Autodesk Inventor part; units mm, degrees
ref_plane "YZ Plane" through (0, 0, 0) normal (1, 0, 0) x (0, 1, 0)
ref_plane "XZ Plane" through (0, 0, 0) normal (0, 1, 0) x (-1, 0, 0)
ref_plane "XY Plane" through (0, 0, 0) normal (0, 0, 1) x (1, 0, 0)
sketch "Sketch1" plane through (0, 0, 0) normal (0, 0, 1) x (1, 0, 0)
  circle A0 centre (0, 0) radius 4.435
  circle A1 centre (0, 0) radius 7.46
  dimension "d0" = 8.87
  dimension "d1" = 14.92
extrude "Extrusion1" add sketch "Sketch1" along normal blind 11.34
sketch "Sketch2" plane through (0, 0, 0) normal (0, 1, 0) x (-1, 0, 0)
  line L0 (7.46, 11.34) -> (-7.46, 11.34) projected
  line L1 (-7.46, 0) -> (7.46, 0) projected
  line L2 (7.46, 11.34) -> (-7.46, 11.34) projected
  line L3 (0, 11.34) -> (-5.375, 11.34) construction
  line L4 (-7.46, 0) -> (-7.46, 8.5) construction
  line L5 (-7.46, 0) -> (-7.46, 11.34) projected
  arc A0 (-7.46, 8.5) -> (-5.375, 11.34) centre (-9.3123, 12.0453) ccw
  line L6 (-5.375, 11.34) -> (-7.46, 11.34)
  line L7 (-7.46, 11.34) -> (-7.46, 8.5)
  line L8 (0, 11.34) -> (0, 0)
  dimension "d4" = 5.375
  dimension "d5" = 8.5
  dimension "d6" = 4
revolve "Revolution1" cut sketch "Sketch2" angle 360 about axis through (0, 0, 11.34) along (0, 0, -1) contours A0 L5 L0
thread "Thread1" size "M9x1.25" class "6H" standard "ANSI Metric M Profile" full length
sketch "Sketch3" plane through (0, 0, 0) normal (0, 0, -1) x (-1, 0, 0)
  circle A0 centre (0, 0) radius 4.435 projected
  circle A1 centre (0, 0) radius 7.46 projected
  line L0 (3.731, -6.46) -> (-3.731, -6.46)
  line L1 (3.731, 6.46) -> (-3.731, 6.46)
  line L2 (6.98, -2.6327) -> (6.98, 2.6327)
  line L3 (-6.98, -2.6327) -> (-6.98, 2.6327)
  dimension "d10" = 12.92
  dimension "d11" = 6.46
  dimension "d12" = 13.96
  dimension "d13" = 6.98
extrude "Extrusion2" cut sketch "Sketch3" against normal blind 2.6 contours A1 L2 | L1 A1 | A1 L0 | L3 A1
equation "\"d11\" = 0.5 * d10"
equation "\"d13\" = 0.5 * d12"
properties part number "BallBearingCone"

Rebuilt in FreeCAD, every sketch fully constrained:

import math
import FreeCAD as App
import Part
import Sketcher

V = App.Vector

doc = App.newDocument("Part")
body = doc.addObject("PartDesign::Body", "Body")

sketch1 = body.newObject("Sketcher::SketchObject", "Sketch")
sketch1.AttachmentSupport = (doc.getObject("XY_Plane"), [""])
sketch1.MapMode = "FlatFace"
sketch1.addGeometry(Part.Circle(V(0, 0, 0), V(0, 0, 1), 7.5), False)
sketch1.addGeometry(Part.Circle(V(0, 0, 0), V(0, 0, 1), 4.4), False)
sketch1.addConstraint(Sketcher.Constraint("Coincident", 0, 3, -1, 1))
sketch1.addConstraint(Sketcher.Constraint("Coincident", 1, 3, -1, 1))
sketch1.addConstraint(Sketcher.Constraint("Diameter", 0, 14.92))
sketch1.addConstraint(Sketcher.Constraint("Diameter", 1, 8.87))
pad1 = body.newObject("PartDesign::Pad", "Pad")
pad1.Profile = sketch1
pad1.Length = 11.34

sketch2 = body.newObject("Sketcher::SketchObject", "Sketch001")
sketch2.AttachmentSupport = (doc.getObject("XZ_Plane"), [""])
sketch2.MapMode = "FlatFace"
sketch2.addGeometry(Part.ArcOfCircle(Part.Circle(V(9.3, 12, 0), V(0, 0, 1), 4), math.radians(-170), math.radians(-118)), False)
sketch2.addGeometry(Part.LineSegment(V(5.4, 11.3, 0), V(7.5, 11.3, 0)), False)
sketch2.addGeometry(Part.LineSegment(V(7.5, 11.3, 0), V(7.5, 8.5, 0)), False)
sketch2.addConstraint(Sketcher.Constraint("Coincident", 0, 1, 1, 1))
sketch2.addConstraint(Sketcher.Constraint("Coincident", 1, 2, 2, 1))
sketch2.addConstraint(Sketcher.Constraint("Coincident", 2, 2, 0, 2))
sketch2.addConstraint(Sketcher.Constraint("Horizontal", 1))
sketch2.addConstraint(Sketcher.Constraint("Vertical", 2))
sketch2.addConstraint(Sketcher.Constraint("Radius", 0, 4.0))
sketch2.addConstraint(Sketcher.Constraint("DistanceY", -1, 1, 2, 2, 8.5))
sketch2.addConstraint(Sketcher.Constraint("DistanceX", -1, 1, 0, 1, 5.375))
sketch2.addConstraint(Sketcher.Constraint("DistanceY", 2, 2, 2, 1, 2.84))
sketch2.addConstraint(Sketcher.Constraint("DistanceX", 1, 1, 1, 2, 2.085))
groove = body.newObject("PartDesign::Groove", "Groove")
groove.Profile = sketch2
groove.ReferenceAxis = (sketch2, ["V_Axis"])
groove.Angle = 360

sketch3 = body.newObject("Sketcher::SketchObject", "Sketch002")
sketch3.AttachmentSupport = (doc.getObject("XY_Plane"), [""])
sketch3.MapMode = "FlatFace"
sketch3.addGeometry(Part.ArcOfCircle(Part.Circle(V(0, 0, 0), V(0, 0, 1), 7), math.radians(159), math.radians(201)), False)
sketch3.addGeometry(Part.LineSegment(V(-7, -3, 0), V(-7, 3, 0)), False)
sketch3.addGeometry(Part.LineSegment(V(4, 6, 0), V(-4, 6, 0)), False)
sketch3.addGeometry(Part.ArcOfCircle(Part.Circle(V(0, 0, 0), V(0, 0, 1), 7), math.radians(60), math.radians(120)), False)
sketch3.addGeometry(Part.ArcOfCircle(Part.Circle(V(0, 0, 0), V(0, 0, 1), 7), math.radians(-120), math.radians(-60)), False)
sketch3.addGeometry(Part.LineSegment(V(4, -6, 0), V(-4, -6, 0)), False)
sketch3.addGeometry(Part.LineSegment(V(7, -3, 0), V(7, 3, 0)), False)
sketch3.addGeometry(Part.ArcOfCircle(Part.Circle(V(0, 0, 0), V(0, 0, 1), 7), math.radians(-21), math.radians(21)), False)
sketch3.addConstraint(Sketcher.Constraint("Coincident", 0, 1, 1, 2))
sketch3.addConstraint(Sketcher.Constraint("Coincident", 1, 1, 0, 2))
sketch3.addConstraint(Sketcher.Constraint("Coincident", 2, 1, 3, 1))
sketch3.addConstraint(Sketcher.Constraint("Coincident", 3, 2, 2, 2))
sketch3.addConstraint(Sketcher.Constraint("Coincident", 4, 1, 5, 2))
sketch3.addConstraint(Sketcher.Constraint("Coincident", 5, 1, 4, 2))
sketch3.addConstraint(Sketcher.Constraint("Coincident", 6, 1, 7, 1))
sketch3.addConstraint(Sketcher.Constraint("Coincident", 7, 2, 6, 2))
sketch3.addConstraint(Sketcher.Constraint("Vertical", 1))
sketch3.addConstraint(Sketcher.Constraint("Horizontal", 2))
sketch3.addConstraint(Sketcher.Constraint("Horizontal", 5))
sketch3.addConstraint(Sketcher.Constraint("Vertical", 6))
sketch3.addConstraint(Sketcher.Constraint("Coincident", 0, 3, -1, 1))
sketch3.addConstraint(Sketcher.Constraint("Coincident", 3, 3, -1, 1))
sketch3.addConstraint(Sketcher.Constraint("Coincident", 4, 3, -1, 1))
sketch3.addConstraint(Sketcher.Constraint("Coincident", 7, 3, -1, 1))
sketch3.addConstraint(Sketcher.Constraint("Equal", 0, 3))
sketch3.addConstraint(Sketcher.Constraint("Equal", 3, 4))
sketch3.addConstraint(Sketcher.Constraint("Equal", 4, 7))
sketch3.addConstraint(Sketcher.Constraint("Horizontal", 1, 1, 6, 1))
sketch3.addConstraint(Sketcher.Constraint("Vertical", 3, 2, 4, 1))
sketch3.addConstraint(Sketcher.Constraint("DistanceX", 0, 1, -1, 1, 6.98))
sketch3.addConstraint(Sketcher.Constraint("DistanceY", -1, 1, 2, 1, 6.46))
sketch3.addConstraint(Sketcher.Constraint("Radius", 0, 7.46))
pocket1 = body.newObject("PartDesign::Pocket", "Pocket")
pocket1.Profile = sketch3
pocket1.Length = 2.6
pocket1.Reversed = True

doc.recompute()
